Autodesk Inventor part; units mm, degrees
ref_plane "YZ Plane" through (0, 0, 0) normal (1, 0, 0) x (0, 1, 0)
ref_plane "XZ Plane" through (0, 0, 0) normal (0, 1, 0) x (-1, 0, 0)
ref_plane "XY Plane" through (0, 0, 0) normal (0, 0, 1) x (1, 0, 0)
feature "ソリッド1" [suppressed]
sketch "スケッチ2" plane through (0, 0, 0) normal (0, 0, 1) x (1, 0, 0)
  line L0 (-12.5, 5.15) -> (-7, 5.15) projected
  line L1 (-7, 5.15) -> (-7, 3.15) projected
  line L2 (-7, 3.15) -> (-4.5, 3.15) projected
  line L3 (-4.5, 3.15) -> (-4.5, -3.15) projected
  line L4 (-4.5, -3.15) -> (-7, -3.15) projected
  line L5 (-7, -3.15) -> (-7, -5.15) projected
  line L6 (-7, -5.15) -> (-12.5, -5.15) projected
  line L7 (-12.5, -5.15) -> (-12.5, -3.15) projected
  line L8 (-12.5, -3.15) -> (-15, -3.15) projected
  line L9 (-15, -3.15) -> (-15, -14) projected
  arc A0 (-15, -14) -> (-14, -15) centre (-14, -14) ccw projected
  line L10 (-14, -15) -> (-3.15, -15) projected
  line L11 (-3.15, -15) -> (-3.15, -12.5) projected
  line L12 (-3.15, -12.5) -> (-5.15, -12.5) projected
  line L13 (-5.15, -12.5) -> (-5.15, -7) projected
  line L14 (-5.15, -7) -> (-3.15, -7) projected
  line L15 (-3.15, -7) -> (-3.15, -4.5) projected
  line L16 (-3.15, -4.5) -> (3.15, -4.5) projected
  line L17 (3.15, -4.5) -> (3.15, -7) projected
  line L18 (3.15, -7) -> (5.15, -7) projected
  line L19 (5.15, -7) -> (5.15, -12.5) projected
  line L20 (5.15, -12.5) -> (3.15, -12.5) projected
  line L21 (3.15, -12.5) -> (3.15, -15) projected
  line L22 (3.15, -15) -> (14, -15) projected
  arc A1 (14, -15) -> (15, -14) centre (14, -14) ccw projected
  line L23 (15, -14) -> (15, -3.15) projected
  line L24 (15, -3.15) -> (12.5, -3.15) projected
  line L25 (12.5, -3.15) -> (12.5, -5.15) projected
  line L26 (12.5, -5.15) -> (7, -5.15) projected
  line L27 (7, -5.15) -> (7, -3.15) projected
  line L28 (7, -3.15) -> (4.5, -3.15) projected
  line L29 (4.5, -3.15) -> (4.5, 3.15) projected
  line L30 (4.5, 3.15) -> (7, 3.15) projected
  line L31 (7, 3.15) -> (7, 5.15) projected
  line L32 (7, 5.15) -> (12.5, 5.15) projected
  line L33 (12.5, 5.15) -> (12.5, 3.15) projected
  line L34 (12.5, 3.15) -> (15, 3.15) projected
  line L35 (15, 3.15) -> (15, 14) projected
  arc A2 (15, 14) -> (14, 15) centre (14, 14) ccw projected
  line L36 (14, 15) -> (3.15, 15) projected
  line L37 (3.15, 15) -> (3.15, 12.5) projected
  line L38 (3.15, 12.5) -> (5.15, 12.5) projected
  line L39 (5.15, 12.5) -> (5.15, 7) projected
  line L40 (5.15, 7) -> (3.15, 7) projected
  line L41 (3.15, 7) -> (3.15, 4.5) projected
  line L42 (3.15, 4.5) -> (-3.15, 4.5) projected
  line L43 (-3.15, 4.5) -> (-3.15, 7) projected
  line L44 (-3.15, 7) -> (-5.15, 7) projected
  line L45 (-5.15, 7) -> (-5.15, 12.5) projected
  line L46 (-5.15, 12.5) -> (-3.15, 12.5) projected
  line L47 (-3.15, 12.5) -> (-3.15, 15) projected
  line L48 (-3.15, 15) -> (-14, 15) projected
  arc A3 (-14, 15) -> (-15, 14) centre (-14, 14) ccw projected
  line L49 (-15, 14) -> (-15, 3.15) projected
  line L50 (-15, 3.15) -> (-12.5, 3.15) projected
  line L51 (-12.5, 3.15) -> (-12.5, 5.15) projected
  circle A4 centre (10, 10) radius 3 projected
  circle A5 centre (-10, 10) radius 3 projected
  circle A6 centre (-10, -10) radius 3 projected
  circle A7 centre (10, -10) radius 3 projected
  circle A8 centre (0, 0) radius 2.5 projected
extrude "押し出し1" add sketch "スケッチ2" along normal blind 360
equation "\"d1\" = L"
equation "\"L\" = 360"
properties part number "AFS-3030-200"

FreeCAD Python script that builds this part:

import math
import FreeCAD as App
import Part
import Sketcher
from FreeCAD import Vector
Q = App.Units.Quantity

doc = App.newDocument("Part")
body = doc.addObject("PartDesign::Body", "Body")

sketch1 = body.newObject("Sketcher::SketchObject", "Sketch")
sketch1.AttachmentSupport = (doc.getObject("XY_Plane"), [""])
sketch1.MapMode = "FlatFace"
sketch1.addGeometry([
    Part.LineSegment(Vector(-12.5, 3.1, 0), Vector(-12.5, 5.2, 0)),
    Part.LineSegment(Vector(-12.5, 5.2, 0), Vector(-7, 5.2, 0)),
    Part.LineSegment(Vector(-7, 5.2, 0), Vector(-7, 3.1, 0)),
    Part.LineSegment(Vector(-7, 3.1, 0), Vector(-4.5, 3.1, 0)),
    Part.LineSegment(Vector(-4.5, 3.1, 0), Vector(-4.5, -3.1, 0)),
    Part.LineSegment(Vector(-4.5, -3.1, 0), Vector(-7, -3.1, 0)),
    Part.LineSegment(Vector(-7, -3.1, 0), Vector(-7, -5.2, 0)),
    Part.LineSegment(Vector(-7, -5.2, 0), Vector(-12.5, -5.2, 0)),
    Part.LineSegment(Vector(-12.5, -5.2, 0), Vector(-12.5, -3.1, 0)),
    Part.LineSegment(Vector(-12.5, -3.1, 0), Vector(-15, -3.1, 0)),
    Part.LineSegment(Vector(-15, -3.1, 0), Vector(-15, -14, 0)),
    Part.ArcOfCircle(Part.Circle(Vector(-14, -14, 0), Vector(0, 0, 1), 1), math.radians(180), math.radians(270)),
    Part.LineSegment(Vector(-14, -15, 0), Vector(-3.1, -15, 0)),
    Part.LineSegment(Vector(-3.1, -15, 0), Vector(-3.1, -12.5, 0)),
    Part.LineSegment(Vector(-3.1, -12.5, 0), Vector(-5.2, -12.5, 0)),
    Part.LineSegment(Vector(-5.2, -12.5, 0), Vector(-5.2, -7, 0)),
    Part.LineSegment(Vector(-5.2, -7, 0), Vector(-3.1, -7, 0)),
    Part.LineSegment(Vector(-3.1, -7, 0), Vector(-3.1, -4.5, 0)),
    Part.LineSegment(Vector(-3.1, -4.5, 0), Vector(3.1, -4.5, 0)),
    Part.LineSegment(Vector(3.1, -4.5, 0), Vector(3.1, -7, 0)),
    Part.LineSegment(Vector(3.1, -7, 0), Vector(5.2, -7, 0)),
    Part.LineSegment(Vector(5.2, -7, 0), Vector(5.2, -12.5, 0)),
    Part.LineSegment(Vector(5.2, -12.5, 0), Vector(3.1, -12.5, 0)),
    Part.LineSegment(Vector(3.1, -12.5, 0), Vector(3.1, -15, 0)),
    Part.LineSegment(Vector(3.1, -15, 0), Vector(14, -15, 0)),
    Part.ArcOfCircle(Part.Circle(Vector(14, -14, 0), Vector(0, 0, 1), 1), math.radians(-90), math.radians(0)),
    Part.LineSegment(Vector(15, -14, 0), Vector(15, -3.1, 0)),
    Part.LineSegment(Vector(15, -3.1, 0), Vector(12.5, -3.1, 0)),
    Part.LineSegment(Vector(12.5, -3.1, 0), Vector(12.5, -5.2, 0)),
    Part.LineSegment(Vector(12.5, -5.2, 0), Vector(7, -5.2, 0)),
    Part.LineSegment(Vector(7, -5.2, 0), Vector(7, -3.1, 0)),
    Part.LineSegment(Vector(7, -3.1, 0), Vector(4.5, -3.1, 0)),
    Part.LineSegment(Vector(4.5, -3.1, 0), Vector(4.5, 3.1, 0)),
    Part.LineSegment(Vector(4.5, 3.1, 0), Vector(7, 3.1, 0)),
    Part.LineSegment(Vector(7, 3.1, 0), Vector(7, 5.2, 0)),
    Part.LineSegment(Vector(7, 5.2, 0), Vector(12.5, 5.2, 0)),
    Part.LineSegment(Vector(12.5, 5.2, 0), Vector(12.5, 3.1, 0)),
    Part.LineSegment(Vector(12.5, 3.1, 0), Vector(15, 3.1, 0)),
    Part.LineSegment(Vector(15, 3.1, 0), Vector(15, 14, 0)),
    Part.ArcOfCircle(Part.Circle(Vector(14, 14, 0), Vector(0, 0, 1), 1), math.radians(0), math.radians(90)),
    Part.LineSegment(Vector(14, 15, 0), Vector(3.1, 15, 0)),
    Part.LineSegment(Vector(3.1, 15, 0), Vector(3.1, 12.5, 0)),
    Part.LineSegment(Vector(3.1, 12.5, 0), Vector(5.2, 12.5, 0)),
    Part.LineSegment(Vector(5.2, 12.5, 0), Vector(5.2, 7, 0)),
    Part.LineSegment(Vector(5.2, 7, 0), Vector(3.1, 7, 0)),
    Part.LineSegment(Vector(3.1, 7, 0), Vector(3.1, 4.5, 0)),
    Part.LineSegment(Vector(3.1, 4.5, 0), Vector(-3.1, 4.5, 0)),
    Part.LineSegment(Vector(-3.1, 4.5, 0), Vector(-3.1, 7, 0)),
    Part.LineSegment(Vector(-3.1, 7, 0), Vector(-5.2, 7, 0)),
    Part.LineSegment(Vector(-5.2, 7, 0), Vector(-5.2, 12.5, 0)),
    Part.LineSegment(Vector(-5.2, 12.5, 0), Vector(-3.1, 12.5, 0)),
    Part.LineSegment(Vector(-3.1, 12.5, 0), Vector(-3.1, 15, 0)),
    Part.LineSegment(Vector(-3.1, 15, 0), Vector(-14, 15, 0)),
    Part.ArcOfCircle(Part.Circle(Vector(-14, 14, 0), Vector(0, 0, 1), 1), math.radians(90), math.radians(180)),
    Part.LineSegment(Vector(-15, 14, 0), Vector(-15, 3.1, 0)),
    Part.LineSegment(Vector(-15, 3.1, 0), Vector(-12.5, 3.1, 0)),
    Part.Circle(Vector(-10, -10, 0), Vector(0, 0, 1), 3),
    Part.Circle(Vector(10, -10, 0), Vector(0, 0, 1), 3),
    Part.Circle(Vector(-10, 10, 0), Vector(0, 0, 1), 3),
    Part.Circle(Vector(0, 0, 0), Vector(0, 0, 1), 2.5),
    Part.Circle(Vector(10, 10, 0), Vector(0, 0, 1), 3),
], False)
sketch1.addConstraint([
    Sketcher.Constraint("Coincident", 0, 2, 1, 1),
    Sketcher.Constraint("Coincident", 1, 2, 2, 1),
    Sketcher.Constraint("Coincident", 2, 2, 3, 1),
    Sketcher.Constraint("Coincident", 3, 2, 4, 1),
    Sketcher.Constraint("Coincident", 4, 2, 5, 1),
    Sketcher.Constraint("Coincident", 5, 2, 6, 1),
    Sketcher.Constraint("Coincident", 6, 2, 7, 1),
    Sketcher.Constraint("Coincident", 7, 2, 8, 1),
    Sketcher.Constraint("Coincident", 8, 2, 9, 1),
    Sketcher.Constraint("Coincident", 9, 2, 10, 1),
    Sketcher.Constraint("Tangent", 10, 2, 11, 1),
    Sketcher.Constraint("Tangent", 11, 2, 12, 1),
    Sketcher.Constraint("Coincident", 12, 2, 13, 1),
    Sketcher.Constraint("Coincident", 13, 2, 14, 1),
    Sketcher.Constraint("Coincident", 14, 2, 15, 1),
    Sketcher.Constraint("Coincident", 15, 2, 16, 1),
    Sketcher.Constraint("Coincident", 16, 2, 17, 1),
    Sketcher.Constraint("Coincident", 17, 2, 18, 1),
    Sketcher.Constraint("Coincident", 18, 2, 19, 1),
    Sketcher.Constraint("Coincident", 19, 2, 20, 1),
    Sketcher.Constraint("Coincident", 20, 2, 21, 1),
    Sketcher.Constraint("Coincident", 21, 2, 22, 1),
    Sketcher.Constraint("Coincident", 22, 2, 23, 1),
    Sketcher.Constraint("Coincident", 23, 2, 24, 1),
    Sketcher.Constraint("Tangent", 24, 2, 25, 1),
    Sketcher.Constraint("Tangent", 25, 2, 26, 1),
    Sketcher.Constraint("Coincident", 26, 2, 27, 1),
    Sketcher.Constraint("Coincident", 27, 2, 28, 1),
    Sketcher.Constraint("Coincident", 28, 2, 29, 1),
    Sketcher.Constraint("Coincident", 29, 2, 30, 1),
    Sketcher.Constraint("Coincident", 30, 2, 31, 1),
    Sketcher.Constraint("Coincident", 31, 2, 32, 1),
    Sketcher.Constraint("Coincident", 32, 2, 33, 1),
    Sketcher.Constraint("Coincident", 33, 2, 34, 1),
    Sketcher.Constraint("Coincident", 34, 2, 35, 1),
    Sketcher.Constraint("Coincident", 35, 2, 36, 1),
    Sketcher.Constraint("Coincident", 36, 2, 37, 1),
    Sketcher.Constraint("Coincident", 37, 2, 38, 1),
    Sketcher.Constraint("Tangent", 38, 2, 39, 1),
    Sketcher.Constraint("Tangent", 39, 2, 40, 1),
    Sketcher.Constraint("Coincident", 40, 2, 41, 1),
    Sketcher.Constraint("Coincident", 41, 2, 42, 1),
    Sketcher.Constraint("Coincident", 42, 2, 43, 1),
    Sketcher.Constraint("Coincident", 43, 2, 44, 1),
    Sketcher.Constraint("Coincident", 44, 2, 45, 1),
    Sketcher.Constraint("Coincident", 45, 2, 46, 1),
    Sketcher.Constraint("Coincident", 46, 2, 47, 1),
    Sketcher.Constraint("Coincident", 47, 2, 48, 1),
    Sketcher.Constraint("Coincident", 48, 2, 49, 1),
    Sketcher.Constraint("Coincident", 49, 2, 50, 1),
    Sketcher.Constraint("Coincident", 50, 2, 51, 1),
    Sketcher.Constraint("Coincident", 51, 2, 52, 1),
    Sketcher.Constraint("Tangent", 52, 2, 53, 1),
    Sketcher.Constraint("Tangent", 53, 2, 54, 1),
    Sketcher.Constraint("Coincident", 54, 2, 55, 1),
    Sketcher.Constraint("Coincident", 55, 2, 0, 1),
    Sketcher.Constraint("Vertical", 0),
    Sketcher.Constraint("Horizontal", 1),
    Sketcher.Constraint("Vertical", 2),
    Sketcher.Constraint("Horizontal", 3),
    Sketcher.Constraint("Vertical", 4),
    Sketcher.Constraint("Horizontal", 5),
    Sketcher.Constraint("Vertical", 6),
    Sketcher.Constraint("Horizontal", 7),
    Sketcher.Constraint("Vertical", 8),
    Sketcher.Constraint("Horizontal", 9),
    Sketcher.Constraint("Vertical", 10),
    Sketcher.Constraint("Horizontal", 12),
    Sketcher.Constraint("Vertical", 13),
    Sketcher.Constraint("Horizontal", 14),
    Sketcher.Constraint("Vertical", 15),
    Sketcher.Constraint("Horizontal", 16),
    Sketcher.Constraint("Vertical", 17),
    Sketcher.Constraint("Horizontal", 18),
    Sketcher.Constraint("Vertical", 19),
    Sketcher.Constraint("Horizontal", 20),
    Sketcher.Constraint("Vertical", 21),
    Sketcher.Constraint("Horizontal", 22),
    Sketcher.Constraint("Vertical", 23),
    Sketcher.Constraint("Horizontal", 24),
    Sketcher.Constraint("Vertical", 26),
    Sketcher.Constraint("Horizontal", 27),
    Sketcher.Constraint("Vertical", 28),
    Sketcher.Constraint("Horizontal", 29),
    Sketcher.Constraint("Vertical", 30),
    Sketcher.Constraint("Horizontal", 31),
    Sketcher.Constraint("Vertical", 32),
    Sketcher.Constraint("Horizontal", 33),
    Sketcher.Constraint("Vertical", 34),
    Sketcher.Constraint("Horizontal", 35),
    Sketcher.Constraint("Vertical", 36),
    Sketcher.Constraint("Horizontal", 37),
    Sketcher.Constraint("Vertical", 38),
    Sketcher.Constraint("Horizontal", 40),
    Sketcher.Constraint("Vertical", 41),
    Sketcher.Constraint("Horizontal", 42),
    Sketcher.Constraint("Vertical", 43),
    Sketcher.Constraint("Horizontal", 44),
    Sketcher.Constraint("Vertical", 45),
    Sketcher.Constraint("Horizontal", 46),
    Sketcher.Constraint("Vertical", 47),
    Sketcher.Constraint("Horizontal", 48),
    Sketcher.Constraint("Vertical", 49),
    Sketcher.Constraint("Horizontal", 50),
    Sketcher.Constraint("Vertical", 51),
    Sketcher.Constraint("Horizontal", 52),
    Sketcher.Constraint("Vertical", 54),
    Sketcher.Constraint("Horizontal", 55),
    Sketcher.Constraint("Coincident", 59, 3, -1, 1),
    Sketcher.Constraint("Equal", 11, 25),
    Sketcher.Constraint("Equal", 25, 39),
    Sketcher.Constraint("Equal", 39, 53),
    Sketcher.Constraint("Equal", 56, 57),
    Sketcher.Constraint("Equal", 57, 58),
    Sketcher.Constraint("Equal", 58, 60),
    Sketcher.Constraint("Symmetric", 11, 3, 39, 3, -1, 1),
    Sketcher.Constraint("Symmetric", 25, 3, 53, 3, -1, 1),
    Sketcher.Constraint("Symmetric", 57, 3, 58, 3, -1, 1),
    Sketcher.Constraint("Symmetric", 56, 3, 60, 3, -1, 1),
    Sketcher.Constraint("Symmetric", 0, 2, 28, 2, -1, 1),
    Sketcher.Constraint("Symmetric", 2, 2, 30, 2, -1, 1),
    Sketcher.Constraint("Symmetric", 4, 2, 32, 2, -1, 1),
    Sketcher.Constraint("Symmetric", 6, 2, 34, 2, -1, 1),
    Sketcher.Constraint("Symmetric", 8, 2, 36, 2, -1, 1),
    Sketcher.Constraint("Symmetric", 13, 2, 41, 2, -1, 1),
    Sketcher.Constraint("Symmetric", 15, 2, 43, 2, -1, 1),
    Sketcher.Constraint("Symmetric", 17, 2, 45, 2, -1, 1),
    Sketcher.Constraint("Symmetric", 19, 2, 47, 2, -1, 1),
    Sketcher.Constraint("Symmetric", 21, 2, 49, 2, -1, 1),
    Sketcher.Constraint("Symmetric", 11, 3, 25, 3, -2),
    Sketcher.Constraint("Symmetric", 56, 3, 57, 3, -2),
    Sketcher.Constraint("Symmetric", 16, 2, 19, 2, -2),
    Sketcher.Constraint("Symmetric", 14, 2, 21, 2, -2),
    Sketcher.Constraint("Symmetric", 8, 2, 27, 2, -2),
    Sketcher.Constraint("Symmetric", 6, 2, 29, 2, -2),
    Sketcher.Constraint("Horizontal", 5, 2, 8, 2),
    Sketcher.Constraint("Horizontal", 27, 2, 30, 2),
    Sketcher.Constraint("Horizontal", 37, 2, 54, 2),
    Sketcher.Constraint("Vertical", 13, 2, 16, 2),
    Sketcher.Constraint("Vertical", 19, 2, 22, 2),
    Sketcher.Constraint("Vertical", 47, 2, 50, 2),
    Sketcher.Constraint("Equal", 5, 9),
    Sketcher.Constraint("Equal", 50, 0),
    Sketcher.Constraint("Equal", 46, 4),
    Sketcher.Constraint("Equal", 52, 10),
    Sketcher.Constraint("Equal", 55, 13),
    Sketcher.Constraint("Equal", 35, 15),
    Sketcher.Constraint("Equal", 13, 17),
    Sketcher.Constraint("Diameter", 56, Q("6 mm")),
    Sketcher.Constraint("Diameter", 59, Q("5 mm")),
    Sketcher.Constraint("Radius", 11, Q("1 mm")),
    Sketcher.Constraint("DistanceX", 14, 2, 14, 1, Q("2 mm")),
    Sketcher.Constraint("DistanceX", 1, 1, 1, 2, Q("5.5 mm")),
    Sketcher.Constraint("DistanceX", 3, 1, 3, 2, Q("2.5 mm")),
    Sketcher.Constraint("DistanceX", 18, 1, 18, 2, Q("6.3 mm")),
    Sketcher.Constraint("DistanceX", 11, 3, -1, 1, Q("14 mm")),
    Sketcher.Constraint("DistanceX", 56, 3, -1, 1, Q("10 mm")),
    Sketcher.Constraint("DistanceY", 56, 3, -1, 1, Q("10 mm")),
])
pad1 = body.newObject("PartDesign::Pad", "Pad")
pad1.Profile = sketch1
pad1.Length = 360

doc.recompute()
